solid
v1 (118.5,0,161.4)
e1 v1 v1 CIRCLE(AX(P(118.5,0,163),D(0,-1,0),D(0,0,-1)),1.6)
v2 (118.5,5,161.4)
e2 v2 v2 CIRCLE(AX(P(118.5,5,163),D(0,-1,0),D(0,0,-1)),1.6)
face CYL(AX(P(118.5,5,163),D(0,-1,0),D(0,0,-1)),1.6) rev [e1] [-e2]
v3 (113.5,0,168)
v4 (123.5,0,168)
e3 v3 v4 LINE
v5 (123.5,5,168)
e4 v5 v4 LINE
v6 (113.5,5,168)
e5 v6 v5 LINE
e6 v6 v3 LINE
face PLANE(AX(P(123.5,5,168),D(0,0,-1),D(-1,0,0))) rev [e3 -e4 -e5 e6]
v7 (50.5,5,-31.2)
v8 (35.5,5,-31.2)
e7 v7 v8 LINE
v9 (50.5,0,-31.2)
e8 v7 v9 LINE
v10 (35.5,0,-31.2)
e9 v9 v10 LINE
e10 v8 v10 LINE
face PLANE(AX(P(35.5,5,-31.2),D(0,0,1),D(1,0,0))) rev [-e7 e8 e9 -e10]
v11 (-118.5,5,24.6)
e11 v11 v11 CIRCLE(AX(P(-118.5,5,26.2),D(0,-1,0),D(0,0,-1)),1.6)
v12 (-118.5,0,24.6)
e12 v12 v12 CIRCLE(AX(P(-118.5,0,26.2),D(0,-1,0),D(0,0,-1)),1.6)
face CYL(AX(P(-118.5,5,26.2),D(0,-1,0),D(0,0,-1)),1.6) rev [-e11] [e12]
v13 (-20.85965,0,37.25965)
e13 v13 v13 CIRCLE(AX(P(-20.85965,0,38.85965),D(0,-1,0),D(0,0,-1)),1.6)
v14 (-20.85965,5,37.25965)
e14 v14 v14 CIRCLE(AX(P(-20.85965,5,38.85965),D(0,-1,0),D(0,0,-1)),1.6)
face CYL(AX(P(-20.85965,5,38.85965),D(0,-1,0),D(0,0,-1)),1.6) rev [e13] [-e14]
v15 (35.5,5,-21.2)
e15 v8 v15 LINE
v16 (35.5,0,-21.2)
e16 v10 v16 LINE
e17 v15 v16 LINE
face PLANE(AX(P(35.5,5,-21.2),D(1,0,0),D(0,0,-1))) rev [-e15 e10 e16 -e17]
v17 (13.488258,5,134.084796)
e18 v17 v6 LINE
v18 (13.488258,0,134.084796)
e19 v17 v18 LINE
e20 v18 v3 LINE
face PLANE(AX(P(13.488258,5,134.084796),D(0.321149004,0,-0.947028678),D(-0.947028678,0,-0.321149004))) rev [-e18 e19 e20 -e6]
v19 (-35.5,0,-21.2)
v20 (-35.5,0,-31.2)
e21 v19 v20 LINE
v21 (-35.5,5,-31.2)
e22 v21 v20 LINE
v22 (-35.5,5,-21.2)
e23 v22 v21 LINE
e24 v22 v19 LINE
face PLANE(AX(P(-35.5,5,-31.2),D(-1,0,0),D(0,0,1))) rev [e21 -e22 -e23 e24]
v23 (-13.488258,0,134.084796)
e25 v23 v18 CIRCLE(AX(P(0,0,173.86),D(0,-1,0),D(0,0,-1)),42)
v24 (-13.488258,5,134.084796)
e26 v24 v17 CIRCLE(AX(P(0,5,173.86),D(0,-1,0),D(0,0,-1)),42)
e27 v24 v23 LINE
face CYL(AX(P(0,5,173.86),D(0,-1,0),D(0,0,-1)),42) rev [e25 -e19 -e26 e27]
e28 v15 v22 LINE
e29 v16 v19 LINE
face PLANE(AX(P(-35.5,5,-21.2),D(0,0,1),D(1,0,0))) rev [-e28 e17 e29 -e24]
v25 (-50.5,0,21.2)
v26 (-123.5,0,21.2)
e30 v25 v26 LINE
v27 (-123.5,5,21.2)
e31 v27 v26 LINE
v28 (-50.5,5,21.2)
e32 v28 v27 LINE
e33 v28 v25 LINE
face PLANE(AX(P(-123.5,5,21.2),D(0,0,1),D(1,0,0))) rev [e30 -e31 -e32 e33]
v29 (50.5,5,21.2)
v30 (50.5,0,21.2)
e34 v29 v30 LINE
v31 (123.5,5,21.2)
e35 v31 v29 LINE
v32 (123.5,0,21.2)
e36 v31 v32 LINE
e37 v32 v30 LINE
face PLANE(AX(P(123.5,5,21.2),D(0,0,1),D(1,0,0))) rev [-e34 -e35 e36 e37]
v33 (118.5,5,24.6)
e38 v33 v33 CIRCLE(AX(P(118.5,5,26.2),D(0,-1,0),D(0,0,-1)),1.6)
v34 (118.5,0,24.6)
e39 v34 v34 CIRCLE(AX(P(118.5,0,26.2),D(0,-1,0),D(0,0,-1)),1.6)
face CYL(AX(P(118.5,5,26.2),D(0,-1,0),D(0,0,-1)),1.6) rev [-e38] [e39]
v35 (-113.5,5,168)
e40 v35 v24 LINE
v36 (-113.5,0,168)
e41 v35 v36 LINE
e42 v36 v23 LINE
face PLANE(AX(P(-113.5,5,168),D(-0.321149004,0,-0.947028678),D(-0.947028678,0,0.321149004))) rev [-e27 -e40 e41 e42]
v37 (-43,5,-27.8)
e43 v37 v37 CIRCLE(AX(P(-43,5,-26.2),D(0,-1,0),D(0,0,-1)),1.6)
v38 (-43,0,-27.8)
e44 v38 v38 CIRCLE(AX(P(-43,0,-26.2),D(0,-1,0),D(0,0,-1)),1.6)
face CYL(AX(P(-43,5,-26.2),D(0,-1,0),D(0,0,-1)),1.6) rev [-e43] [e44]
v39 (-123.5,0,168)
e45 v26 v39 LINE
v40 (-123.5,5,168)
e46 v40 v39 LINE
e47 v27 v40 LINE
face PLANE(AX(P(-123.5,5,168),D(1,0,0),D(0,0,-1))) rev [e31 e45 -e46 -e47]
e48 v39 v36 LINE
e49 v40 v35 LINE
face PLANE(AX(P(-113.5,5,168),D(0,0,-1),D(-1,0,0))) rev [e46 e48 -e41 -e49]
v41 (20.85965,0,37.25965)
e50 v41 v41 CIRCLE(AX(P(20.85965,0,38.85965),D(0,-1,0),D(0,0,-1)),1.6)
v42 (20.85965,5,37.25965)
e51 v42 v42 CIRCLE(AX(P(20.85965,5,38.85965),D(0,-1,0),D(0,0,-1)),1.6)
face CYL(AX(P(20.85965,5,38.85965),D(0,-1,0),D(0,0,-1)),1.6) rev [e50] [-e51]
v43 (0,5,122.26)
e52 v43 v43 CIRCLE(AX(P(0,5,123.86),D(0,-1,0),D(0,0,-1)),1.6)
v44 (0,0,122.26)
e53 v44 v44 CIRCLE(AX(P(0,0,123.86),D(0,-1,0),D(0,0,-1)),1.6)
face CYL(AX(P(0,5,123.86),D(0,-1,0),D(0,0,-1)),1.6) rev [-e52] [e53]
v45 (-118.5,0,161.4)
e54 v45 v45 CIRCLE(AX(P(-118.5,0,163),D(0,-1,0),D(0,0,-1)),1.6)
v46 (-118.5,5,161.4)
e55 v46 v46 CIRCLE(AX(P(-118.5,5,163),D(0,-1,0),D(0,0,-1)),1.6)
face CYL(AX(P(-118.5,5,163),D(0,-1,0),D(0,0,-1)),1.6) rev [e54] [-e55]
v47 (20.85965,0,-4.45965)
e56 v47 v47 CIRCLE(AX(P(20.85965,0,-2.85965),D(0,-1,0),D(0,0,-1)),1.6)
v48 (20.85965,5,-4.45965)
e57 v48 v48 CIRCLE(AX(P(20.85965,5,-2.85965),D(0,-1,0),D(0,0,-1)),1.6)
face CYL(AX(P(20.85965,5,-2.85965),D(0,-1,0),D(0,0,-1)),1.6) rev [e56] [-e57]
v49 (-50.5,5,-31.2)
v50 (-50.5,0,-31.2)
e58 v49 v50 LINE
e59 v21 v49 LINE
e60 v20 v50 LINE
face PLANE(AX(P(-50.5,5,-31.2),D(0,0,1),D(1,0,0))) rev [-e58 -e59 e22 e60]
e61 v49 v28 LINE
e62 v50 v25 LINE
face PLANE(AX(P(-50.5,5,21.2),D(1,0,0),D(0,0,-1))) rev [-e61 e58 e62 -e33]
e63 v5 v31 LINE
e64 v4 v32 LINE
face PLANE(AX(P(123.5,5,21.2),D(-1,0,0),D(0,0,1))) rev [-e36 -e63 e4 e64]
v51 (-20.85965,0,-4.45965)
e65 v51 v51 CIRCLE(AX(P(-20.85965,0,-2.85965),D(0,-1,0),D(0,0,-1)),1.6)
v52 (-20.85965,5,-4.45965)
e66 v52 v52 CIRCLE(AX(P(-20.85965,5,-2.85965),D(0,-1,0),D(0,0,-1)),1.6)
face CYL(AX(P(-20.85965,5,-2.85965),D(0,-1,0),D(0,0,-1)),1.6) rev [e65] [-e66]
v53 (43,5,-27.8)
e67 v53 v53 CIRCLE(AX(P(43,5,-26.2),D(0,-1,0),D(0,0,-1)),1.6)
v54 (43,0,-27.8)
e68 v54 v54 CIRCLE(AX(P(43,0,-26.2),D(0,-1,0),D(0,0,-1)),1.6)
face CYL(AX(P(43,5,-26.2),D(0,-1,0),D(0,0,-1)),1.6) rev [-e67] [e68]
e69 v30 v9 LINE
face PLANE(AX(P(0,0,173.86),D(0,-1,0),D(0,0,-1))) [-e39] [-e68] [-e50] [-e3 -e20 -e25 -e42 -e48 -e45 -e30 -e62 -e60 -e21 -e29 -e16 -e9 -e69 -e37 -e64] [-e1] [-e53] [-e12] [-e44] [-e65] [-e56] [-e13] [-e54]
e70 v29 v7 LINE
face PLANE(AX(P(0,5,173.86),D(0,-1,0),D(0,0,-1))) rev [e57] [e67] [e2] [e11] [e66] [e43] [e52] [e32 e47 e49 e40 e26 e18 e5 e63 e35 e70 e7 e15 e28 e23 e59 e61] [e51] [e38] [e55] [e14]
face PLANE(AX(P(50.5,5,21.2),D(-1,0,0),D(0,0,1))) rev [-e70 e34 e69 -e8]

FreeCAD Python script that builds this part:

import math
import FreeCAD as App
import Part
import Sketcher

doc = App.newDocument("Part")
body = doc.addObject("PartDesign::Body", "Body")

sketch1 = body.newObject("Sketcher::SketchObject", "Sketch")
sketch1.AttachmentSupport = (doc.getObject("XZ_Plane"), [""])
sketch1.MapMode = "FlatFace"
sketch1.addGeometry([
    Part.LineSegment(App.Vector(-36, -31, 0), App.Vector(-50, -31, 0)),
    Part.LineSegment(App.Vector(-50, -31, 0), App.Vector(-50, 21, 0)),
    Part.LineSegment(App.Vector(-50, 21, 0), App.Vector(-124, 21, 0)),
    Part.LineSegment(App.Vector(-124, 21, 0), App.Vector(-124, 168, 0)),
    Part.LineSegment(App.Vector(-124, 168, 0), App.Vector(-114, 168, 0)),
    Part.LineSegment(App.Vector(-114, 168, 0), App.Vector(-13, 134, 0)),
    Part.ArcOfCircle(Part.Circle(App.Vector(0, 174, 0), App.Vector(0, 0, 1), 42), math.radians(-109), math.radians(-71)),
    Part.LineSegment(App.Vector(13, 134, 0), App.Vector(114, 168, 0)),
    Part.LineSegment(App.Vector(114, 168, 0), App.Vector(124, 168, 0)),
    Part.LineSegment(App.Vector(124, 168, 0), App.Vector(124, 21, 0)),
    Part.LineSegment(App.Vector(124, 21, 0), App.Vector(50, 21, 0)),
    Part.LineSegment(App.Vector(50, 21, 0), App.Vector(50, -31, 0)),
    Part.LineSegment(App.Vector(50, -31, 0), App.Vector(36, -31, 0)),
    Part.LineSegment(App.Vector(36, -31, 0), App.Vector(36, -21, 0)),
    Part.LineSegment(App.Vector(36, -21, 0), App.Vector(-36, -21, 0)),
    Part.LineSegment(App.Vector(-36, -21, 0), App.Vector(-36, -31, 0)),
], False)
sketch1.addConstraint([
    Sketcher.Constraint("Coincident", 0, 2, 1, 1),
    Sketcher.Constraint("Coincident", 1, 2, 2, 1),
    Sketcher.Constraint("Coincident", 2, 2, 3, 1),
    Sketcher.Constraint("Coincident", 3, 2, 4, 1),
    Sketcher.Constraint("Coincident", 4, 2, 5, 1),
    Sketcher.Constraint("Tangent", 5, 2, 6, 1),
    Sketcher.Constraint("Tangent", 6, 2, 7, 1),
    Sketcher.Constraint("Coincident", 7, 2, 8, 1),
    Sketcher.Constraint("Coincident", 8, 2, 9, 1),
    Sketcher.Constraint("Coincident", 9, 2, 10, 1),
    Sketcher.Constraint("Coincident", 10, 2, 11, 1),
    Sketcher.Constraint("Coincident", 11, 2, 12, 1),
    Sketcher.Constraint("Coincident", 12, 2, 13, 1),
    Sketcher.Constraint("Coincident", 13, 2, 14, 1),
    Sketcher.Constraint("Coincident", 14, 2, 15, 1),
    Sketcher.Constraint("Coincident", 15, 2, 0, 1),
    Sketcher.Constraint("Horizontal", 0),
    Sketcher.Constraint("Vertical", 1),
    Sketcher.Constraint("Horizontal", 2),
    Sketcher.Constraint("Vertical", 3),
    Sketcher.Constraint("Horizontal", 4),
    Sketcher.Constraint("Horizontal", 8),
    Sketcher.Constraint("Vertical", 9),
    Sketcher.Constraint("Horizontal", 10),
    Sketcher.Constraint("Vertical", 11),
    Sketcher.Constraint("Horizontal", 12),
    Sketcher.Constraint("Vertical", 13),
    Sketcher.Constraint("Horizontal", 14),
    Sketcher.Constraint("Vertical", 15),
    Sketcher.Constraint("Symmetric", 5, 2, 6, 2, -2),
    Sketcher.Constraint("Symmetric", 3, 2, 8, 2, -2),
    Sketcher.Constraint("Symmetric", 1, 2, 10, 2, -2),
    Sketcher.Constraint("Symmetric", 12, 2, 15, 2, -2),
    Sketcher.Constraint("Equal", 8, 13),
    Sketcher.Constraint("Radius", 6, 42.0),
    Sketcher.Constraint("DistanceX", 0, 2, 0, 1, 15.0),
    Sketcher.Constraint("DistanceX", 2, 2, 2, 1, 73.0),
    Sketcher.Constraint("DistanceX", 4, 1, 4, 2, 10.0),
    Sketcher.Constraint("DistanceX", 14, 2, 14, 1, 71.0),
    Sketcher.Constraint("DistanceY", 1, 1, 1, 2, 52.4),
    Sketcher.Constraint("DistanceY", 3, 1, 3, 2, 146.8),
    Sketcher.Constraint("DistanceY", -1, 1, 3, 2, 168.0),
    Sketcher.Constraint("DistanceY", -1, 1, 6, 3, 173.86),
])
pad1 = body.newObject("PartDesign::Pad", "Pad")
pad1.Profile = sketch1
pad1.Length = 5
pad1.Reversed = True

sketch2 = body.newObject("Sketcher::SketchObject", "Sketch001")
sketch2.AttachmentSupport = (doc.getObject("XZ_Plane"), [""])
sketch2.MapMode = "FlatFace"
sketch2.addGeometry([
    Part.Circle(App.Vector(-118.5, 163, 0), App.Vector(0, 0, 1), 1.6),
    Part.Circle(App.Vector(118.5, 163, 0), App.Vector(0, 0, 1), 1.6),
    Part.Circle(App.Vector(118.5, 26.2, 0), App.Vector(0, 0, 1), 1.6),
    Part.Circle(App.Vector(-118.5, 26.2, 0), App.Vector(0, 0, 1), 1.6),
    Part.Circle(App.Vector(43, -26.2, 0), App.Vector(0, 0, 1), 1.6),
    Part.Circle(App.Vector(-43, -26.2, 0), App.Vector(0, 0, 1), 1.6),
    Part.Circle(App.Vector(20.9, 38.9, 0), App.Vector(0, 0, 1), 1.6),
    Part.Circle(App.Vector(-20.9, 38.9, 0), App.Vector(0, 0, 1), 1.6),
    Part.Circle(App.Vector(-20.9, -2.9, 0), App.Vector(0, 0, 1), 1.6),
    Part.Circle(App.Vector(20.9, -2.9, 0), App.Vector(0, 0, 1), 1.6),
    Part.Circle(App.Vector(0, 123.9, 0), App.Vector(0, 0, 1), 1.6),
], False)
sketch2.addConstraint([
    Sketcher.Constraint("Equal", 0, 1),
    Sketcher.Constraint("Equal", 1, 2),
    Sketcher.Constraint("Equal", 2, 3),
    Sketcher.Constraint("Equal", 3, 4),
    Sketcher.Constraint("Equal", 4, 5),
    Sketcher.Constraint("Equal", 5, 6),
    Sketcher.Constraint("Equal", 6, 7),
    Sketcher.Constraint("Equal", 7, 8),
    Sketcher.Constraint("Equal", 8, 9),
    Sketcher.Constraint("Equal", 9, 10),
    Sketcher.Constraint("Symmetric", 0, 3, 1, 3, -2),
    Sketcher.Constraint("Symmetric", 2, 3, 3, 3, -2),
    Sketcher.Constraint("Symmetric", 4, 3, 5, 3, -2),
    Sketcher.Constraint("Symmetric", 6, 3, 7, 3, -2),
    Sketcher.Constraint("Symmetric", 8, 3, 9, 3, -2),
    Sketcher.Constraint("PointOnObject", 10, 3, -2),
    Sketcher.Constraint("Vertical", 1, 3, 2, 3),
    Sketcher.Constraint("Vertical", 7, 3, 8, 3),
    Sketcher.Constraint("Diameter", 0, 3.2),
    Sketcher.Constraint("DistanceY", -1, 1, 0, 3, 163.0),
    Sketcher.Constraint("DistanceX", -1, 1, 4, 3, 43.0),
    Sketcher.Constraint("DistanceX", 0, 3, 1, 3, 237.0),
    Sketcher.Constraint("DistanceY", -1, 1, 2, 3, 26.2),
    Sketcher.Constraint("DistanceY", 4, 3, -1, 1, 26.2),
    Sketcher.Constraint("DistanceY", -1, 1, 10, 3, 123.86),
    Sketcher.Constraint("DistanceX", 7, 3, 6, 3, 41.7193),
    Sketcher.Constraint("DistanceY", 8, 3, 7, 3, 41.7193),
    Sketcher.Constraint("DistanceY", -1, 1, 6, 3, 38.85965),
])
pocket1 = body.newObject("PartDesign::Pocket", "Pocket")
pocket1.Profile = sketch2
pocket1.Type = "ThroughAll"

doc.recompute()
